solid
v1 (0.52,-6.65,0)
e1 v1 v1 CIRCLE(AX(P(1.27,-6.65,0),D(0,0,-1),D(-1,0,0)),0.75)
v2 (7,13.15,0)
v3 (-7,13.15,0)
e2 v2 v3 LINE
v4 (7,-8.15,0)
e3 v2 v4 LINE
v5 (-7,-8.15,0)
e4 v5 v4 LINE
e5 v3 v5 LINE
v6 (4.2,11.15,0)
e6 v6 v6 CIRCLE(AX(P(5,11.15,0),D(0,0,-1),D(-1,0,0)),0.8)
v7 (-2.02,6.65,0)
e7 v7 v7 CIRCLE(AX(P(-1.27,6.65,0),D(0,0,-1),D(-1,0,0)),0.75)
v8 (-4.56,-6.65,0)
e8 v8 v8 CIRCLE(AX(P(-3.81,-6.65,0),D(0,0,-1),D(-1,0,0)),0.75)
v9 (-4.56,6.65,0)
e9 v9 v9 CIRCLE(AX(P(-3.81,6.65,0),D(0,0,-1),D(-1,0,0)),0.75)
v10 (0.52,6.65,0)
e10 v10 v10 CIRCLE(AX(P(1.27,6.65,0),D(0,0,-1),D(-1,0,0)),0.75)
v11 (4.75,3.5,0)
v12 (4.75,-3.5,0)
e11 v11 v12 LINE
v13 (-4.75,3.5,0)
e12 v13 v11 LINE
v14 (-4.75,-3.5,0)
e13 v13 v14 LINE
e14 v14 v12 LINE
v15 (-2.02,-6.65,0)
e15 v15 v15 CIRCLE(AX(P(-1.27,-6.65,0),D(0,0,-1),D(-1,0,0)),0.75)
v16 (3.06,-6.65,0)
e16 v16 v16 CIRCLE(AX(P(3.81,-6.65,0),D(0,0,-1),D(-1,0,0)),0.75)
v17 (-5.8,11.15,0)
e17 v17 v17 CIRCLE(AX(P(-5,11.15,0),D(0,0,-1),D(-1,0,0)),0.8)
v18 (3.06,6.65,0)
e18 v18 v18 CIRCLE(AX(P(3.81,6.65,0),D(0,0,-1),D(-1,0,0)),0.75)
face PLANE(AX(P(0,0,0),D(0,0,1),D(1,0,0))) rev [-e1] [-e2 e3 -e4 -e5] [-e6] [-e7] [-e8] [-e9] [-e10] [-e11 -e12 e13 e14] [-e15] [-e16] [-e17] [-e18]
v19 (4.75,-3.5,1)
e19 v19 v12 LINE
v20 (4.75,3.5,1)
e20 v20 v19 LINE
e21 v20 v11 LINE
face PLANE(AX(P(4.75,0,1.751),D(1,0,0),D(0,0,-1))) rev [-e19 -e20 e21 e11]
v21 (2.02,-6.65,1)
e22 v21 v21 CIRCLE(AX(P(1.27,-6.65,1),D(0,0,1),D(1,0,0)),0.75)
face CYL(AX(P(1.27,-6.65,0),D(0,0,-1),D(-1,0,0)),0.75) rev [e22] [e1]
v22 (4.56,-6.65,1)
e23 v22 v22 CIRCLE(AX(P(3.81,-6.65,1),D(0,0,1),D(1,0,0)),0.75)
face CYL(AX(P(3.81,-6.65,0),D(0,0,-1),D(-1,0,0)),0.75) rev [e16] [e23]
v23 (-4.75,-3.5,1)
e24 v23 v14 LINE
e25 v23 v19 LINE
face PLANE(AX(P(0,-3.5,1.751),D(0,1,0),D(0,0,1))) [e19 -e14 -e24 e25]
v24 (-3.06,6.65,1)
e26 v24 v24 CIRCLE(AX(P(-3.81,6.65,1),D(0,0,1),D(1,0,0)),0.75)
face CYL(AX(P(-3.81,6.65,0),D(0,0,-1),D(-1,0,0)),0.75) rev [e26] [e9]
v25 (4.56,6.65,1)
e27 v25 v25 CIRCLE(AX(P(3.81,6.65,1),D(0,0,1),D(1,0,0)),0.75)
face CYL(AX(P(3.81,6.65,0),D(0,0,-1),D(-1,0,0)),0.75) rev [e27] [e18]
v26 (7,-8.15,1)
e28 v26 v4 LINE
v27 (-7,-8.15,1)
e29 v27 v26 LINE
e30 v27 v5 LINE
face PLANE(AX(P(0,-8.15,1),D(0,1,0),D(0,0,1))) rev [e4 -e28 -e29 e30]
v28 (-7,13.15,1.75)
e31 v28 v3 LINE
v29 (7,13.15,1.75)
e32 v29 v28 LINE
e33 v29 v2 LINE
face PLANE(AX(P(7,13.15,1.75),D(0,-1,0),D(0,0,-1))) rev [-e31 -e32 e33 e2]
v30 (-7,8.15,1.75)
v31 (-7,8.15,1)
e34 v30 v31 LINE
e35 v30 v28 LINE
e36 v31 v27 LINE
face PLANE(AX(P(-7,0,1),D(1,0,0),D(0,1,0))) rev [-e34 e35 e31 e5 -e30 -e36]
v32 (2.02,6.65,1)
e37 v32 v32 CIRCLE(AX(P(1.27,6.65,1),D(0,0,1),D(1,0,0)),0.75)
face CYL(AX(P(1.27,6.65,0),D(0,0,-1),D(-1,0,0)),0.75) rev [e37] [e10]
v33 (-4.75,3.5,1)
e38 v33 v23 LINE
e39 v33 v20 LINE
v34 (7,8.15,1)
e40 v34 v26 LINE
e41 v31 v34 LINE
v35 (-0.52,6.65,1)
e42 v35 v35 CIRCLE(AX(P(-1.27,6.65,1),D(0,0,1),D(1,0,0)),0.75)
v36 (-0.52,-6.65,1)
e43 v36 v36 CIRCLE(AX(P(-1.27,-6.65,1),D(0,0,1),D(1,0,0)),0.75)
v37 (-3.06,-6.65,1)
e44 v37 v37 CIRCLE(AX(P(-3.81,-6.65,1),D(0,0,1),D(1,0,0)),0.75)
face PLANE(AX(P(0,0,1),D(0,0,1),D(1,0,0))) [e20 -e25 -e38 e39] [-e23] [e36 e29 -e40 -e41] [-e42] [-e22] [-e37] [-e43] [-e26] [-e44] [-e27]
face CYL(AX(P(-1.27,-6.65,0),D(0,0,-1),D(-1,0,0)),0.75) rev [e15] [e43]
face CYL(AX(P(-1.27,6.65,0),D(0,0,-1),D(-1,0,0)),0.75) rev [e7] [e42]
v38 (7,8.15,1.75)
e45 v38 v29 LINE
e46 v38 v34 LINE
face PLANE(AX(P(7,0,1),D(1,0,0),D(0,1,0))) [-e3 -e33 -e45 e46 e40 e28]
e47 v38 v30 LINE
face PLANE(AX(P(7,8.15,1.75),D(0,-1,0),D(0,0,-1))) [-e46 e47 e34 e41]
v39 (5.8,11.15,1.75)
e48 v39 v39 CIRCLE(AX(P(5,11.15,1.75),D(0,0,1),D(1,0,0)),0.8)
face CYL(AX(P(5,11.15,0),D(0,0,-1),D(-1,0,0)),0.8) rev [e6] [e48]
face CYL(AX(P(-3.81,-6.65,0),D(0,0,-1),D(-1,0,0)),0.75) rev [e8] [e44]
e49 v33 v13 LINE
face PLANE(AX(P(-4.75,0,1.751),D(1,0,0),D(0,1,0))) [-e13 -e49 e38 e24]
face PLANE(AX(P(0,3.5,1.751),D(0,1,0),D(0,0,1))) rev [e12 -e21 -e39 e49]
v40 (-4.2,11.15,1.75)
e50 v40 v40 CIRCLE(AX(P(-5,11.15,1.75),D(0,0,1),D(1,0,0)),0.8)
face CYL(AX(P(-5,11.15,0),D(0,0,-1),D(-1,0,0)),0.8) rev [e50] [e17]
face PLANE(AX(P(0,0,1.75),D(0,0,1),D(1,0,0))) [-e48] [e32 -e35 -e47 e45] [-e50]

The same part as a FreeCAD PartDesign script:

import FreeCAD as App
import Part
import Sketcher
from FreeCAD import Vector
Q = App.Units.Quantity

doc = App.newDocument("Part")
body = doc.addObject("PartDesign::Body", "Body")

sketch1 = body.newObject("Sketcher::SketchObject", "Sketch")
sketch1.AttachmentSupport = (doc.getObject("XY_Plane"), [""])
sketch1.MapMode = "FlatFace"
sketch1.addGeometry([
    Part.LineSegment(Vector(-7, 8.15, 0), Vector(-7, -8.15, 0)),
    Part.LineSegment(Vector(-7, -8.15, 0), Vector(7, -8.15, 0)),
    Part.LineSegment(Vector(7, -8.15, 0), Vector(7, 8.15, 0)),
    Part.LineSegment(Vector(7, 8.15, 0), Vector(-7, 8.15, 0)),
], False)
sketch1.addConstraint([
    Sketcher.Constraint("Coincident", 0, 2, 1, 1),
    Sketcher.Constraint("Coincident", 1, 2, 2, 1),
    Sketcher.Constraint("Coincident", 2, 2, 3, 1),
    Sketcher.Constraint("Coincident", 3, 2, 0, 1),
    Sketcher.Constraint("Vertical", 0),
    Sketcher.Constraint("Horizontal", 1),
    Sketcher.Constraint("Vertical", 2),
    Sketcher.Constraint("Horizontal", 3),
    Sketcher.Constraint("Symmetric", 0, 2, 2, 2, -1, 1),
    Sketcher.Constraint("DistanceX", 1, 1, 1, 2, Q("14 mm")),
    Sketcher.Constraint("DistanceY", 0, 2, 0, 1, Q("16.3 mm")),
])
pad1 = body.newObject("PartDesign::Pad", "Pad")
pad1.Profile = sketch1
pad1.Length = 1

sketch2 = body.newObject("Sketcher::SketchObject", "Sketch001")
sketch2.AttachmentSupport = (doc.getObject("XY_Plane"), [""])
sketch2.MapMode = "FlatFace"
sketch2.addGeometry([
    Part.LineSegment(Vector(-7, 13.15, 0), Vector(-7, 8.15, 0)),
    Part.LineSegment(Vector(-7, 8.15, 0), Vector(7, 8.15, 0)),
    Part.LineSegment(Vector(7, 8.15, 0), Vector(7, 13.15, 0)),
    Part.LineSegment(Vector(7, 13.15, 0), Vector(-7, 13.15, 0)),
], False)
sketch2.addConstraint([
    Sketcher.Constraint("Coincident", 0, 2, 1, 1),
    Sketcher.Constraint("Coincident", 1, 2, 2, 1),
    Sketcher.Constraint("Coincident", 2, 2, 3, 1),
    Sketcher.Constraint("Coincident", 3, 2, 0, 1),
    Sketcher.Constraint("Vertical", 0),
    Sketcher.Constraint("Horizontal", 1),
    Sketcher.Constraint("Vertical", 2),
    Sketcher.Constraint("Horizontal", 3),
    Sketcher.Constraint("DistanceX", 1, 1, 1, 2, Q("14 mm")),
    Sketcher.Constraint("DistanceY", 0, 2, 0, 1, Q("5 mm")),
    Sketcher.Constraint("DistanceX", 0, 2, -1, 1, Q("7 mm")),
    Sketcher.Constraint("DistanceY", -1, 1, 0, 2, Q("8.15 mm")),
])
pad2 = body.newObject("PartDesign::Pad", "Pad001")
pad2.Profile = sketch2
pad2.Length = 1.75

sketch3 = body.newObject("Sketcher::SketchObject", "Sketch002")
sketch3.AttachmentSupport = (doc.getObject("XY_Plane"), [""])
sketch3.MapMode = "FlatFace"
sketch3.addGeometry([
    Part.LineSegment(Vector(-4.75, 3.5, 0), Vector(-4.75, -3.5, 0)),
    Part.LineSegment(Vector(-4.75, -3.5, 0), Vector(4.75, -3.5, 0)),
    Part.LineSegment(Vector(4.75, -3.5, 0), Vector(4.75, 3.5, 0)),
    Part.LineSegment(Vector(4.75, 3.5, 0), Vector(-4.75, 3.5, 0)),
], False)
sketch3.addConstraint([
    Sketcher.Constraint("Coincident", 0, 2, 1, 1),
    Sketcher.Constraint("Coincident", 1, 2, 2, 1),
    Sketcher.Constraint("Coincident", 2, 2, 3, 1),
    Sketcher.Constraint("Coincident", 3, 2, 0, 1),
    Sketcher.Constraint("Vertical", 0),
    Sketcher.Constraint("Horizontal", 1),
    Sketcher.Constraint("Vertical", 2),
    Sketcher.Constraint("Horizontal", 3),
    Sketcher.Constraint("Symmetric", 0, 2, 2, 2, -1, 1),
    Sketcher.Constraint("DistanceY", 0, 2, 0, 1, Q("7 mm")),
    Sketcher.Constraint("DistanceX", 1, 1, 1, 2, Q("9.5 mm")),
])
pocket1 = body.newObject("PartDesign::Pocket", "Pocket")
pocket1.Profile = sketch3
pocket1.Type = "UpToFirst"
pocket1.Reversed = True

sketch4 = body.newObject("Sketcher::SketchObject", "Sketch003")
sketch4.AttachmentSupport = (doc.getObject("XY_Plane"), [""])
sketch4.MapMode = "FlatFace"
sketch4.addGeometry([
    Part.Circle(Vector(-3.81, 6.65, 0), Vector(0, 0, 1), 0.75),
    Part.Circle(Vector(-1.27, 6.65, 0), Vector(0, 0, 1), 0.75),
    Part.Circle(Vector(1.27, 6.65, 0), Vector(0, 0, 1), 0.75),
    Part.Circle(Vector(3.81, 6.65, 0), Vector(0, 0, 1), 0.75),
    Part.Circle(Vector(3.81, -6.65, 0), Vector(0, 0, 1), 0.75),
    Part.Circle(Vector(1.27, -6.65, 0), Vector(0, 0, 1), 0.75),
    Part.Circle(Vector(-1.27, -6.65, 0), Vector(0, 0, 1), 0.75),
    Part.Circle(Vector(-3.81, -6.65, 0), Vector(0, 0, 1), 0.75),
], False)
sketch4.addConstraint([
    Sketcher.Constraint("Equal", 0, 1),
    Sketcher.Constraint("Equal", 1, 2),
    Sketcher.Constraint("Equal", 2, 3),
    Sketcher.Constraint("Equal", 3, 4),
    Sketcher.Constraint("Equal", 4, 5),
    Sketcher.Constraint("Equal", 5, 6),
    Sketcher.Constraint("Equal", 6, 7),
    Sketcher.Constraint("Symmetric", 0, 3, 4, 3, -1, 1),
    Sketcher.Constraint("Symmetric", 1, 3, 5, 3, -1, 1),
    Sketcher.Constraint("Symmetric", 2, 3, 6, 3, -1, 1),
    Sketcher.Constraint("Symmetric", 3, 3, 7, 3, -1, 1),
    Sketcher.Constraint("Symmetric", 1, 3, 2, 3, -2),
    Sketcher.Constraint("Symmetric", 0, 3, 3, 3, -2),
    Sketcher.Constraint("Horizontal", 0, 3, 1, 3),
    Sketcher.Constraint("Diameter", 0, Q("1.5 mm")),
    Sketcher.Constraint("DistanceY", 4, 3, 3, 3, Q("13.3 mm")),
    Sketcher.Constraint("DistanceX", 0, 3, -1, 1, Q("3.81 mm")),
    Sketcher.Constraint("DistanceX", 1, 3, -1, 1, Q("1.27 mm")),
])
doc.recompute()
hole = body.newObject("PartDesign::Hole", "Hole")
hole.Profile = sketch4
hole.ThreadType = "None"
hole.Diameter = 1.5
hole.DepthType = "Dimension"
hole.Depth = 1
hole.DrillPoint = "Flat"
hole.Reversed = True

sketch5 = body.newObject("Sketcher::SketchObject", "Sketch004")
sketch5.AttachmentSupport = (doc.getObject("XY_Plane"), [""])
sketch5.MapMode = "FlatFace"
sketch5.addGeometry([
    Part.Circle(Vector(5, 11.15, 0), Vector(0, 0, 1), 0.8),
    Part.Circle(Vector(-5, 11.15, 0), Vector(0, 0, 1), 0.8),
], False)
sketch5.addConstraint([
    Sketcher.Constraint("Equal", 0, 1),
    Sketcher.Constraint("Symmetric", 0, 3, 1, 3, -2),
    Sketcher.Constraint("Diameter", 0, Q("1.6 mm")),
    Sketcher.Constraint("DistanceX", -1, 1, 0, 3, Q("5 mm")),
    Sketcher.Constraint("DistanceY", -1, 1, 0, 3, Q("11.15 mm")),
])
doc.recompute()
hole2 = body.newObject("PartDesign::Hole", "Hole001")
hole2.Profile = sketch5
hole2.ThreadType = "None"
hole2.Diameter = 1.6
hole2.DepthType = "Dimension"
hole2.Depth = 1.75
hole2.DrillPoint = "Flat"
hole2.Reversed = True

doc.recompute()
